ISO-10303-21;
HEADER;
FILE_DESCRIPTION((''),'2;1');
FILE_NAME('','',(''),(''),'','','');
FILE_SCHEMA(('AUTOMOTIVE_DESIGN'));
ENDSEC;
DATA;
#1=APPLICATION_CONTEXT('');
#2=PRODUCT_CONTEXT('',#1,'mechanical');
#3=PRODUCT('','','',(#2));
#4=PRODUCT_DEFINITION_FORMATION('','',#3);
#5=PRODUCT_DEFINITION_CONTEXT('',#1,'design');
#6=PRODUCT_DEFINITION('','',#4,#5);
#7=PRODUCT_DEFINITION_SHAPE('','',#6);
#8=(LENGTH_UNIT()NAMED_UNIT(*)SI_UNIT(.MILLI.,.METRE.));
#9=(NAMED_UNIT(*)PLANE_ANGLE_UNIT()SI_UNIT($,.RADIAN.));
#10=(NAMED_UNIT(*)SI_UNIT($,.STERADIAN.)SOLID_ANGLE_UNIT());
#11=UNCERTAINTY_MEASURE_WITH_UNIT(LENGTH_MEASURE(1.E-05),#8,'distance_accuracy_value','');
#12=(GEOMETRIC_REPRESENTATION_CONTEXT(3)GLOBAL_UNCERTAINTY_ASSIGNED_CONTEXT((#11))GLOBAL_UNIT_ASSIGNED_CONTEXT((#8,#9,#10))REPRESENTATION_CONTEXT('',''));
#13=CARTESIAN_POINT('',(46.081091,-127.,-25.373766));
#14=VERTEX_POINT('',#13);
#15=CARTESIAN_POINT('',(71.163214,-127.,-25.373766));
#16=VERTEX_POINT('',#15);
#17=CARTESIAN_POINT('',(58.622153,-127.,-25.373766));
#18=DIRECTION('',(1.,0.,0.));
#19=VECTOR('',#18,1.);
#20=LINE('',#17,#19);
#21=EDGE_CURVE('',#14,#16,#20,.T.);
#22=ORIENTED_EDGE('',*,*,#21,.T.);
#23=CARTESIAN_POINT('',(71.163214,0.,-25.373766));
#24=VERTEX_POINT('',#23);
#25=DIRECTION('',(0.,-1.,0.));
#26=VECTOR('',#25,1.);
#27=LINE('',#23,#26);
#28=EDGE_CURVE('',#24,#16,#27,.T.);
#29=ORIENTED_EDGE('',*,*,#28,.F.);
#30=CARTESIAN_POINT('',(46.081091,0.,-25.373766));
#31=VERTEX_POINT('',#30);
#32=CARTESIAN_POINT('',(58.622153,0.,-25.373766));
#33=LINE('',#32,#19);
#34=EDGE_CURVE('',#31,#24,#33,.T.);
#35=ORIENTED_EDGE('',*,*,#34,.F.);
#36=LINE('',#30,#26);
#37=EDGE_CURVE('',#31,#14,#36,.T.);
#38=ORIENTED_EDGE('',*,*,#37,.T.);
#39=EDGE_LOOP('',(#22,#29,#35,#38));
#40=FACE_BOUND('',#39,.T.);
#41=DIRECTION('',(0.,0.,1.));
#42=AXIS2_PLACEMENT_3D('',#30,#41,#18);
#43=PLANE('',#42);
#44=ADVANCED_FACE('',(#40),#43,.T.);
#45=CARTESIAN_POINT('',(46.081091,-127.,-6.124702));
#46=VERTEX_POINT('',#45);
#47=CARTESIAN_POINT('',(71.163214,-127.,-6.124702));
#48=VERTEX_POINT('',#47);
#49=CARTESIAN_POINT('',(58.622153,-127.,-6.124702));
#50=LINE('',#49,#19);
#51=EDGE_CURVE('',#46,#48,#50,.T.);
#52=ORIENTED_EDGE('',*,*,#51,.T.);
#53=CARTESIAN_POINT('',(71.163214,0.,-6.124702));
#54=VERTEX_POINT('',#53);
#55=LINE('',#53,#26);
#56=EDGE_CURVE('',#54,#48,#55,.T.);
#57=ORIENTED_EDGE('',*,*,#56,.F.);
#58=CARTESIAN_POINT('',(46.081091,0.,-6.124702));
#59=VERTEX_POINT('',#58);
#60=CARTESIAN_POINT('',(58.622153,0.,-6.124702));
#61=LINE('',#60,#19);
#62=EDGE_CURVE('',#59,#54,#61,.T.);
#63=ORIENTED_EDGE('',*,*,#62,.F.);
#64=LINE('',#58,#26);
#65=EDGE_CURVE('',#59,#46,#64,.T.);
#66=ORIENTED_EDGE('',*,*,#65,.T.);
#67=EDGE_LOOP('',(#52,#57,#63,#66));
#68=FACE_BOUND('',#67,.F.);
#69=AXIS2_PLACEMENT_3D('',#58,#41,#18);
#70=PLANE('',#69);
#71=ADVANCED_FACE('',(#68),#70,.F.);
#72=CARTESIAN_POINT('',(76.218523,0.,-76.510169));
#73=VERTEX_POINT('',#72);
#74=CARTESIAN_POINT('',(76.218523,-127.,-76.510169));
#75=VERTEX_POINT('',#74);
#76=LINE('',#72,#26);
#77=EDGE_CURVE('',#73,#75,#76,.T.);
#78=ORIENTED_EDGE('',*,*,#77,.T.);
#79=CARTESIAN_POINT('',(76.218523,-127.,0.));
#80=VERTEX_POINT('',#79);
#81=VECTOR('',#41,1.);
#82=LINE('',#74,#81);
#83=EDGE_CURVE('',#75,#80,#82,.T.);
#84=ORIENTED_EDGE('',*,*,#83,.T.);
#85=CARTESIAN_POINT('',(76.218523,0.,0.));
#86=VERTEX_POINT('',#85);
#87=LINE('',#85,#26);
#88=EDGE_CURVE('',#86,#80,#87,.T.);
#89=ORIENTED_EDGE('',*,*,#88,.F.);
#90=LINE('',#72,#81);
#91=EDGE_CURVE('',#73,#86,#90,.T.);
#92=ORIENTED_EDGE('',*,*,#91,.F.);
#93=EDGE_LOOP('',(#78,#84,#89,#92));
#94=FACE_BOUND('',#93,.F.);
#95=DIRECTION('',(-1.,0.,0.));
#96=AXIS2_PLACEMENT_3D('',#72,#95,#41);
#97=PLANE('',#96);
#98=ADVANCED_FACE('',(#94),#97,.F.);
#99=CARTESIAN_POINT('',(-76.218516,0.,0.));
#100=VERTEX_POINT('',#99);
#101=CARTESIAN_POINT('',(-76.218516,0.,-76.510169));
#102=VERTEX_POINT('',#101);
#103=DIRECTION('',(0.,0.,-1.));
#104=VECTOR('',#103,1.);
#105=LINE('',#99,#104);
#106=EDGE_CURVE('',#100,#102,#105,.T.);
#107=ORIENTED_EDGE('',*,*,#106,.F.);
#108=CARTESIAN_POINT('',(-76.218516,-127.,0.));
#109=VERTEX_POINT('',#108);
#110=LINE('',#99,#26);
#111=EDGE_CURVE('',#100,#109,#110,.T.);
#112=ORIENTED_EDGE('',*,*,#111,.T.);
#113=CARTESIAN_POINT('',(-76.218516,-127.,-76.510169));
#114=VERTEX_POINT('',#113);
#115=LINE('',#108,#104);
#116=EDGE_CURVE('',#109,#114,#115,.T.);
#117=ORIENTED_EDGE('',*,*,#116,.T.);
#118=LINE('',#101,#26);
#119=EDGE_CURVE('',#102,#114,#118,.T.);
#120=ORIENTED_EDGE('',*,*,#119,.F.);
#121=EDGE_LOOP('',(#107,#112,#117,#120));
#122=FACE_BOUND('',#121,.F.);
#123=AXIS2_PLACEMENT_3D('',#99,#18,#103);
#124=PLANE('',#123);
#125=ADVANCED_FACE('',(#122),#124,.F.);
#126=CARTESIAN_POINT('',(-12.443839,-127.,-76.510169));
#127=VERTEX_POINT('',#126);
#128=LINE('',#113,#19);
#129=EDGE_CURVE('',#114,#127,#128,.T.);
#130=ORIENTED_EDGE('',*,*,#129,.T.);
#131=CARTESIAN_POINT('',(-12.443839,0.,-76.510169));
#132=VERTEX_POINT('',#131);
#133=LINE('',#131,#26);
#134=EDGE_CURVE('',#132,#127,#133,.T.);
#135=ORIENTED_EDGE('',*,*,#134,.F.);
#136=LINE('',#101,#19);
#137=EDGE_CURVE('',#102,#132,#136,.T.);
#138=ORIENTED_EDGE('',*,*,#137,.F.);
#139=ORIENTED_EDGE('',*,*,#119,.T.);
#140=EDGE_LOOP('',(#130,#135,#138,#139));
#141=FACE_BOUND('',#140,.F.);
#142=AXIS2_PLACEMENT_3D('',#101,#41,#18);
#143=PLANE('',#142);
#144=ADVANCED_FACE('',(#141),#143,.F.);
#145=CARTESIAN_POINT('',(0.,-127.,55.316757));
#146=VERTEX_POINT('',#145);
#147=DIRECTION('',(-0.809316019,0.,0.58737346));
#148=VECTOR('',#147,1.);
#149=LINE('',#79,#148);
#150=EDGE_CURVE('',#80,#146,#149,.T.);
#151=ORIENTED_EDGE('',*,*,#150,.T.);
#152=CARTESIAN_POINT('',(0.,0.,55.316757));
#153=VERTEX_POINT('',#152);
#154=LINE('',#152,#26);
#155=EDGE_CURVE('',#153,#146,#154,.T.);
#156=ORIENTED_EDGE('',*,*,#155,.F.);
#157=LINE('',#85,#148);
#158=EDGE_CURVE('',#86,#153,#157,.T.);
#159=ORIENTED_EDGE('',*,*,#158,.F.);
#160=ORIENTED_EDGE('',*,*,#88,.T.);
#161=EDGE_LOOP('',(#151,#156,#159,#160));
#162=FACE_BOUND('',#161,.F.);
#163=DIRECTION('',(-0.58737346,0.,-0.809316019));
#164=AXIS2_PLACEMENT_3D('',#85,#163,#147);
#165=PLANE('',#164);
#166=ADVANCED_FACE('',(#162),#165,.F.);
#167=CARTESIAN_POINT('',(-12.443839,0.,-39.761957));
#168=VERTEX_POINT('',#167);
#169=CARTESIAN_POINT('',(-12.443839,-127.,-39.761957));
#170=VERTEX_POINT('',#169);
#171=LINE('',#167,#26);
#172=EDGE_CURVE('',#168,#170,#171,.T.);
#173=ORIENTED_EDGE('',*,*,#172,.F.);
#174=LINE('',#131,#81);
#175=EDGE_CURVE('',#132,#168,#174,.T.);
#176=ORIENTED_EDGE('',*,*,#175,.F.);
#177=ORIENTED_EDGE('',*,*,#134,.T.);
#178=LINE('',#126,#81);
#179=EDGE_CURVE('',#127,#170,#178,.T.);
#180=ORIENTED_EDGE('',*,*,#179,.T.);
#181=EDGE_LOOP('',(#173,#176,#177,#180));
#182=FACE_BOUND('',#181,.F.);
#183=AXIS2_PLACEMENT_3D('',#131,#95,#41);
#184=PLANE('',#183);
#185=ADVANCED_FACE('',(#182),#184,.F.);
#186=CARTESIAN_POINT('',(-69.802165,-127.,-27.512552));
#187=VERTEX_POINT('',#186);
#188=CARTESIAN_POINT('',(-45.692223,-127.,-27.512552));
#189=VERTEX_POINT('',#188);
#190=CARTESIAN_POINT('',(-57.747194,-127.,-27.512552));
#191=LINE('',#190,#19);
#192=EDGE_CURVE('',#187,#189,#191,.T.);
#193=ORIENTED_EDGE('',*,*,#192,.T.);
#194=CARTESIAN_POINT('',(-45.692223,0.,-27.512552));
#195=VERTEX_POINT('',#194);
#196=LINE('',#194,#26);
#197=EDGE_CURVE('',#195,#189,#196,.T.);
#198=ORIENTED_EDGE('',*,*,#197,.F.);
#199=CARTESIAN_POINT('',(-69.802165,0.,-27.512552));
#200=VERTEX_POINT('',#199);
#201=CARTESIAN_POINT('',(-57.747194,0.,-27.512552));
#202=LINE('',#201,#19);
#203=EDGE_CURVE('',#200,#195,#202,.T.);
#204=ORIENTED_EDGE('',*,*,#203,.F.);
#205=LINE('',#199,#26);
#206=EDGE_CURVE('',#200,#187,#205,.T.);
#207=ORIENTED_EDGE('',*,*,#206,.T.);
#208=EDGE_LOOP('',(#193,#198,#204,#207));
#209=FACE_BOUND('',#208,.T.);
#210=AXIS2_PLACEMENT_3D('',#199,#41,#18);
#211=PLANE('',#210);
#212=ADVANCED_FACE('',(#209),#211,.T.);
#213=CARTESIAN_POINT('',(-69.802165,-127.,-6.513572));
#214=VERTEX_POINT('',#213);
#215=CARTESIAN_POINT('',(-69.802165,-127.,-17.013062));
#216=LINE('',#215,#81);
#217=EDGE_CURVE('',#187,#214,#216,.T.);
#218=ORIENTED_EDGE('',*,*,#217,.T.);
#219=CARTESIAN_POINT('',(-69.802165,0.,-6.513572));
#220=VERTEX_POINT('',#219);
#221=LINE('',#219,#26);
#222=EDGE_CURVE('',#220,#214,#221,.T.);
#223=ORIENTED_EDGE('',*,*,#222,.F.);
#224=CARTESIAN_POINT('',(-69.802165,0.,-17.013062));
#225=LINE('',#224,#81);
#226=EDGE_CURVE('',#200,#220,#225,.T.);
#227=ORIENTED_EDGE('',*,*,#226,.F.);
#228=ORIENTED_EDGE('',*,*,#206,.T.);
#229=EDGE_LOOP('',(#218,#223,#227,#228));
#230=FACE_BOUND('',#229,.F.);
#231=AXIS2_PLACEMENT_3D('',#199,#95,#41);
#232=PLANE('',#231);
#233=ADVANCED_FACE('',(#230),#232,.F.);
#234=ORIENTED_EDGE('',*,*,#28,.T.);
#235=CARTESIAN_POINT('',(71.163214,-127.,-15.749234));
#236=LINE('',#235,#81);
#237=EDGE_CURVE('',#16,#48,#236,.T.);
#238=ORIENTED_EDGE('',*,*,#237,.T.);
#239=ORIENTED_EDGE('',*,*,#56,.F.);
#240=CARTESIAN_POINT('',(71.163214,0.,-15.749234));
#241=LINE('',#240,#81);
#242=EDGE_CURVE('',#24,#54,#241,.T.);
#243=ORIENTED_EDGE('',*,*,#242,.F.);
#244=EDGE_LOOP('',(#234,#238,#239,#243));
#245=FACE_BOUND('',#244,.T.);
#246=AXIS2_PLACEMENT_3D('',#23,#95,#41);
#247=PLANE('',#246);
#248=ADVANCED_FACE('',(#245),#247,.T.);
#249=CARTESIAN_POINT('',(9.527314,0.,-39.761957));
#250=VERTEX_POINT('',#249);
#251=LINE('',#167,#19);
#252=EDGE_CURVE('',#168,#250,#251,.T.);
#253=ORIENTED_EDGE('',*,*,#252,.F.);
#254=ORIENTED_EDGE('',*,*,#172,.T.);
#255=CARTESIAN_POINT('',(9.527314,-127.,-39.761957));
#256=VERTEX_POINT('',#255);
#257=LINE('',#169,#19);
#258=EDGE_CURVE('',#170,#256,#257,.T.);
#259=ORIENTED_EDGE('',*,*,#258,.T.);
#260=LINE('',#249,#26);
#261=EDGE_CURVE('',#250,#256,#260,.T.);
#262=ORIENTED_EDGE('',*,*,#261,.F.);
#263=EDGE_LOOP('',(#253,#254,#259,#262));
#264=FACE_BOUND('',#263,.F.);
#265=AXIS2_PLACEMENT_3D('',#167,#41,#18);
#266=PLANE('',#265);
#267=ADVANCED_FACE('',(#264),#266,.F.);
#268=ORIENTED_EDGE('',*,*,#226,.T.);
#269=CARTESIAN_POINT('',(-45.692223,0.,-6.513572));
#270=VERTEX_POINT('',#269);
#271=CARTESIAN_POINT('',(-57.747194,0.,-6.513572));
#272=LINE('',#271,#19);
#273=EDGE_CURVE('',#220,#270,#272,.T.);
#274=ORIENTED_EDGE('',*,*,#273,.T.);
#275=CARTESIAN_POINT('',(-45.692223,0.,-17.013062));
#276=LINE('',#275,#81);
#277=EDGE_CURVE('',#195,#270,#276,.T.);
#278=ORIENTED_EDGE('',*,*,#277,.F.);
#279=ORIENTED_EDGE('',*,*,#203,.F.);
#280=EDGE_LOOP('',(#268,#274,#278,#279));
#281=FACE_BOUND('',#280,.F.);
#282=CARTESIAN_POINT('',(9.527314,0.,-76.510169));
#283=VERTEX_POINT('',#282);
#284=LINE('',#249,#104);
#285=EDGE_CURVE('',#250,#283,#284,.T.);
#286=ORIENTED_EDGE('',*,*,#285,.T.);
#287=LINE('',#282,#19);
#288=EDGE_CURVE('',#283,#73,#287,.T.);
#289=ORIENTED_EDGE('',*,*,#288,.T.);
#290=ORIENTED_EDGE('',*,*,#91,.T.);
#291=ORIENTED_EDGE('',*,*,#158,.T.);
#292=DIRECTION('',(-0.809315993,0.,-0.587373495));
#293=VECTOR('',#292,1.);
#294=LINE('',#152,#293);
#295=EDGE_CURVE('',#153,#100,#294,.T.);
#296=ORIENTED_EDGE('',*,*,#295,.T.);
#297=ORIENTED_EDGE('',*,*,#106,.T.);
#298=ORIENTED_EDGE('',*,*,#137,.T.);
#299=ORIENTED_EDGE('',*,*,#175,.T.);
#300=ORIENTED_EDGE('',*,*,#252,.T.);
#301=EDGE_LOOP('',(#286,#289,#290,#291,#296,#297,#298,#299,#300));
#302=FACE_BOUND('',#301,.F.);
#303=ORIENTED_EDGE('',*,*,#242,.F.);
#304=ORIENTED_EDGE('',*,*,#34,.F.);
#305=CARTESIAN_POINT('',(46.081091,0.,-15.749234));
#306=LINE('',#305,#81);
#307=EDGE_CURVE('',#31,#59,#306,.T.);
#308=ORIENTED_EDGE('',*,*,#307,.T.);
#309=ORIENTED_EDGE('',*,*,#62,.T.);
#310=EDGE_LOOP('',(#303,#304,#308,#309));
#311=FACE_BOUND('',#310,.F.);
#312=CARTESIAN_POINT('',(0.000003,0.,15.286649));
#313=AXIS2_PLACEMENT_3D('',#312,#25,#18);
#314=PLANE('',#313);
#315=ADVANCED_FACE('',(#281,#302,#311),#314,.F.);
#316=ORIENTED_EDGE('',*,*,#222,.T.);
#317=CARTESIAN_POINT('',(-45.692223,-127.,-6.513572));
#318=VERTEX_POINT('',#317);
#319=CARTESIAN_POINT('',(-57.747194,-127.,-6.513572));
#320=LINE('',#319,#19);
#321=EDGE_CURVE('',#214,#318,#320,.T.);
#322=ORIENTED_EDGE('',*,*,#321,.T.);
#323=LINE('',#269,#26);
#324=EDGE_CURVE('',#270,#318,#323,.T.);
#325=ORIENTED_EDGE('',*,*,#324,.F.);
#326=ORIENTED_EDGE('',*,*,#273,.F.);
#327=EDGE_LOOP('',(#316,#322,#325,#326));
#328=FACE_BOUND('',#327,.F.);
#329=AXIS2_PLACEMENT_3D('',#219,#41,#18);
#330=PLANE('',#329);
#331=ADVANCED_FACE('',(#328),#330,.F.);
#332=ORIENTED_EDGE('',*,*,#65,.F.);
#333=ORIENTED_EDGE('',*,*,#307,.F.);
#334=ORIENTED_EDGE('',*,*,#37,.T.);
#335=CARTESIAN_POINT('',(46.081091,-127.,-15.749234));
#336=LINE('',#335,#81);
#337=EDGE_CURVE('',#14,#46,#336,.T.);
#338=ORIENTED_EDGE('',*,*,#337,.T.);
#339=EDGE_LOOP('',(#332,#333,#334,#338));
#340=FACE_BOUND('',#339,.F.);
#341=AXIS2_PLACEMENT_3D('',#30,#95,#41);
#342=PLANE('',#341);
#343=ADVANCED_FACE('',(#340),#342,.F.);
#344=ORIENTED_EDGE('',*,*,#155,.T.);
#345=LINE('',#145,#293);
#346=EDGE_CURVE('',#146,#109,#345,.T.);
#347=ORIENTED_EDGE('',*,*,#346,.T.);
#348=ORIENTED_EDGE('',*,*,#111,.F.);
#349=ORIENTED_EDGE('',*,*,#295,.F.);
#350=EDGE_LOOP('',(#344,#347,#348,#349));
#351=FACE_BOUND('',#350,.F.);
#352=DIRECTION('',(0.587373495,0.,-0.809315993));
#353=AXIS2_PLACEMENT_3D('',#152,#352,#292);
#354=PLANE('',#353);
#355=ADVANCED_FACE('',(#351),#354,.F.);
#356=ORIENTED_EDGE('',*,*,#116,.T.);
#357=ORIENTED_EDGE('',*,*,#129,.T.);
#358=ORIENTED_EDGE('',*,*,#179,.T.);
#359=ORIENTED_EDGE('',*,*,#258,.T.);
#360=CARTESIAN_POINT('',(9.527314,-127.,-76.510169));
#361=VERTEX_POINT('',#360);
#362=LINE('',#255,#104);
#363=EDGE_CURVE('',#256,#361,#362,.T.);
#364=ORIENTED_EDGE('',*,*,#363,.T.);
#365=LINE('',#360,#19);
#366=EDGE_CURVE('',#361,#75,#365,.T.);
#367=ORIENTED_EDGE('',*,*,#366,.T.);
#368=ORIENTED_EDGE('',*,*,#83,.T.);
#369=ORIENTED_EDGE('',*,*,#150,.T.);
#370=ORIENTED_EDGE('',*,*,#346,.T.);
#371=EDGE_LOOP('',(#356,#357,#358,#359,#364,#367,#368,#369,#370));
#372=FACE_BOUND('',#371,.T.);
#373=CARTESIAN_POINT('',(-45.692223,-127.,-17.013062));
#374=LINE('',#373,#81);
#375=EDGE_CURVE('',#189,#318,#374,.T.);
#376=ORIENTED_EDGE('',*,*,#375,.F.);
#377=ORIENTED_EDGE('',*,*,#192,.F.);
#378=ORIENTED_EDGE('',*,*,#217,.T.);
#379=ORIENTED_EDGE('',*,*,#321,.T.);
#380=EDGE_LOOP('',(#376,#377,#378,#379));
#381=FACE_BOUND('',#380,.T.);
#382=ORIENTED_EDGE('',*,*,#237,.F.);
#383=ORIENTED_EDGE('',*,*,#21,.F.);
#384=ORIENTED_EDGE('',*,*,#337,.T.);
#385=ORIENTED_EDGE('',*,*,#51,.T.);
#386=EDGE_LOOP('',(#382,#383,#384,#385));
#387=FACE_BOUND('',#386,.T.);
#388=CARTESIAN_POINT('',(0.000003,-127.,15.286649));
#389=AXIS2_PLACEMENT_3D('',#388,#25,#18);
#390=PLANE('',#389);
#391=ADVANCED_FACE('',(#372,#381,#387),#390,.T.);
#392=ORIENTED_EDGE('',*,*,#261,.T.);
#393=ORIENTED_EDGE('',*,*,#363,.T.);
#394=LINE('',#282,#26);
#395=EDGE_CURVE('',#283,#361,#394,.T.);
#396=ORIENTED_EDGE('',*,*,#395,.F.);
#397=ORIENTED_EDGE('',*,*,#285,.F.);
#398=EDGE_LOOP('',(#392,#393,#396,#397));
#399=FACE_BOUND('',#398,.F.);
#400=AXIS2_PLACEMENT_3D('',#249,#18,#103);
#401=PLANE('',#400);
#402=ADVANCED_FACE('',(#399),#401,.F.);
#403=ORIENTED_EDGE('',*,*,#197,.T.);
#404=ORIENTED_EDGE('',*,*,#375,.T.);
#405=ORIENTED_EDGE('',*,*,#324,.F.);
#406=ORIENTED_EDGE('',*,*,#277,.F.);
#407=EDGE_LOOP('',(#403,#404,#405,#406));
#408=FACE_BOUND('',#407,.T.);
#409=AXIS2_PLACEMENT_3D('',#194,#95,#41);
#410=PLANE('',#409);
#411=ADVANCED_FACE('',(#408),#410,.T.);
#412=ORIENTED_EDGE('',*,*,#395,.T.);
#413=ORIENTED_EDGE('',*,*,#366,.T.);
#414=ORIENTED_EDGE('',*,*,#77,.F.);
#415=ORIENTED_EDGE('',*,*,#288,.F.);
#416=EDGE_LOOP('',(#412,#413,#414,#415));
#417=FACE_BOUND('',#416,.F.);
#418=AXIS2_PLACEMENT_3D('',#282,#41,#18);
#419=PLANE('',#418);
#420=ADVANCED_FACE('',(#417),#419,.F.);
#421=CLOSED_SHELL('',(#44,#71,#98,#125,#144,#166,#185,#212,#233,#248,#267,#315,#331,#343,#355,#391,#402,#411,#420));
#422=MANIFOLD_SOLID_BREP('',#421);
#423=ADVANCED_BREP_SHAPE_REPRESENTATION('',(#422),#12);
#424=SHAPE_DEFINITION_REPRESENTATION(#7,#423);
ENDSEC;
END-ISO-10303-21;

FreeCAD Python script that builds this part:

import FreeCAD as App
import Part
import Sketcher

V = App.Vector
Q = App.Units.Quantity


def add_polygon(sketch, points):
    """Adds a closed chain of lines whose ends are joined by coincident constraints."""
    first, n = sketch.GeometryCount, len(points)
    for a, b in zip(points, points[1:] + points[:1]):
        sketch.addGeometry(Part.LineSegment(App.Vector(*a, 0), App.Vector(*b, 0)), False)
    for i in range(n):
        sketch.addConstraint(Sketcher.Constraint("Coincident", first + i, 2, first + (i + 1) % n, 1))

doc = App.newDocument("Part")
body = doc.addObject("PartDesign::Body", "Body")

sketch1 = doc.addObject("Sketcher::SketchObject", "Sketch")
body.addObject(sketch1)
sketch1.AttachmentSupport = (doc.XZ_Plane, [""])
sketch1.MapMode = "FlatFace"
add_polygon(sketch1, [(0, 55), (-76, 0), (-76, -77), (-12, -77), (-12, -40), (10, -40), (10, -77), (76, -77), (76, 0)])
add_polygon(sketch1, [(-46, -28), (-70, -28), (-70, -7), (-46, -7)])
add_polygon(sketch1, [(71, -25), (46, -25), (46, -6), (71, -6)])
sketch1.addConstraint([
    Sketcher.Constraint("Vertical", 1),
    Sketcher.Constraint("Horizontal", 2),
    Sketcher.Constraint("Vertical", 3),
    Sketcher.Constraint("Horizontal", 4),
    Sketcher.Constraint("Vertical", 5),
    Sketcher.Constraint("Horizontal", 6),
    Sketcher.Constraint("Vertical", 7),
    Sketcher.Constraint("Horizontal", 9),
    Sketcher.Constraint("Vertical", 10),
    Sketcher.Constraint("Horizontal", 11),
    Sketcher.Constraint("Vertical", 12),
    Sketcher.Constraint("Horizontal", 13),
    Sketcher.Constraint("Vertical", 14),
    Sketcher.Constraint("Horizontal", 15),
    Sketcher.Constraint("Vertical", 16),
    Sketcher.Constraint("Symmetric", 0, 2, 7, 2, -1, 1),
    Sketcher.Constraint("PointOnObject", 0, 2, -1),
    Sketcher.Constraint("PointOnObject", 8, 2, -2),
    Sketcher.Constraint("Horizontal", 2, 2, 5, 2),
    Sketcher.Constraint("DistanceX", 6, 1, 6, 2, Q("66.691209 mm")),
    Sketcher.Constraint("DistanceX", 9, 2, 9, 1, Q("24.109941 mm")),
    Sketcher.Constraint("DistanceY", 1, 2, 1, 1, Q("76.510169 mm")),
    Sketcher.Constraint("DistanceY", 10, 1, 10, 2, Q("20.99898 mm")),
    Sketcher.Constraint("DistanceX", 4, 2, 15, 2, Q("61.6359 mm")),
    Sketcher.Constraint("Distance", 0, Q("94.176461 mm")),
    Sketcher.Constraint("DistanceX", 2, 1, 2, 2, Q("63.774677 mm")),
    Sketcher.Constraint("DistanceX", 4, 1, 4, 2, Q("21.971153 mm")),
    Sketcher.Constraint("DistanceX", 13, 2, 13, 1, Q("25.082123 mm")),
    Sketcher.Constraint("DistanceY", 3, 1, 3, 2, Q("36.748212 mm")),
    Sketcher.Constraint("DistanceY", 14, 1, 14, 2, Q("19.249064 mm")),
    Sketcher.Constraint("DistanceY", 9, 2, -1, 1, Q("27.512552 mm")),
    Sketcher.Constraint("DistanceX", 0, 2, 9, 2, Q("6.416351 mm")),
    Sketcher.Constraint("DistanceY", 4, 2, 13, 2, Q("14.388191 mm")),
])
pad1 = doc.addObject("PartDesign::Pad", "Pad")
body.addObject(pad1)
pad1.Profile = sketch1
pad1.Length = Q("5 in")

doc.recompute()
